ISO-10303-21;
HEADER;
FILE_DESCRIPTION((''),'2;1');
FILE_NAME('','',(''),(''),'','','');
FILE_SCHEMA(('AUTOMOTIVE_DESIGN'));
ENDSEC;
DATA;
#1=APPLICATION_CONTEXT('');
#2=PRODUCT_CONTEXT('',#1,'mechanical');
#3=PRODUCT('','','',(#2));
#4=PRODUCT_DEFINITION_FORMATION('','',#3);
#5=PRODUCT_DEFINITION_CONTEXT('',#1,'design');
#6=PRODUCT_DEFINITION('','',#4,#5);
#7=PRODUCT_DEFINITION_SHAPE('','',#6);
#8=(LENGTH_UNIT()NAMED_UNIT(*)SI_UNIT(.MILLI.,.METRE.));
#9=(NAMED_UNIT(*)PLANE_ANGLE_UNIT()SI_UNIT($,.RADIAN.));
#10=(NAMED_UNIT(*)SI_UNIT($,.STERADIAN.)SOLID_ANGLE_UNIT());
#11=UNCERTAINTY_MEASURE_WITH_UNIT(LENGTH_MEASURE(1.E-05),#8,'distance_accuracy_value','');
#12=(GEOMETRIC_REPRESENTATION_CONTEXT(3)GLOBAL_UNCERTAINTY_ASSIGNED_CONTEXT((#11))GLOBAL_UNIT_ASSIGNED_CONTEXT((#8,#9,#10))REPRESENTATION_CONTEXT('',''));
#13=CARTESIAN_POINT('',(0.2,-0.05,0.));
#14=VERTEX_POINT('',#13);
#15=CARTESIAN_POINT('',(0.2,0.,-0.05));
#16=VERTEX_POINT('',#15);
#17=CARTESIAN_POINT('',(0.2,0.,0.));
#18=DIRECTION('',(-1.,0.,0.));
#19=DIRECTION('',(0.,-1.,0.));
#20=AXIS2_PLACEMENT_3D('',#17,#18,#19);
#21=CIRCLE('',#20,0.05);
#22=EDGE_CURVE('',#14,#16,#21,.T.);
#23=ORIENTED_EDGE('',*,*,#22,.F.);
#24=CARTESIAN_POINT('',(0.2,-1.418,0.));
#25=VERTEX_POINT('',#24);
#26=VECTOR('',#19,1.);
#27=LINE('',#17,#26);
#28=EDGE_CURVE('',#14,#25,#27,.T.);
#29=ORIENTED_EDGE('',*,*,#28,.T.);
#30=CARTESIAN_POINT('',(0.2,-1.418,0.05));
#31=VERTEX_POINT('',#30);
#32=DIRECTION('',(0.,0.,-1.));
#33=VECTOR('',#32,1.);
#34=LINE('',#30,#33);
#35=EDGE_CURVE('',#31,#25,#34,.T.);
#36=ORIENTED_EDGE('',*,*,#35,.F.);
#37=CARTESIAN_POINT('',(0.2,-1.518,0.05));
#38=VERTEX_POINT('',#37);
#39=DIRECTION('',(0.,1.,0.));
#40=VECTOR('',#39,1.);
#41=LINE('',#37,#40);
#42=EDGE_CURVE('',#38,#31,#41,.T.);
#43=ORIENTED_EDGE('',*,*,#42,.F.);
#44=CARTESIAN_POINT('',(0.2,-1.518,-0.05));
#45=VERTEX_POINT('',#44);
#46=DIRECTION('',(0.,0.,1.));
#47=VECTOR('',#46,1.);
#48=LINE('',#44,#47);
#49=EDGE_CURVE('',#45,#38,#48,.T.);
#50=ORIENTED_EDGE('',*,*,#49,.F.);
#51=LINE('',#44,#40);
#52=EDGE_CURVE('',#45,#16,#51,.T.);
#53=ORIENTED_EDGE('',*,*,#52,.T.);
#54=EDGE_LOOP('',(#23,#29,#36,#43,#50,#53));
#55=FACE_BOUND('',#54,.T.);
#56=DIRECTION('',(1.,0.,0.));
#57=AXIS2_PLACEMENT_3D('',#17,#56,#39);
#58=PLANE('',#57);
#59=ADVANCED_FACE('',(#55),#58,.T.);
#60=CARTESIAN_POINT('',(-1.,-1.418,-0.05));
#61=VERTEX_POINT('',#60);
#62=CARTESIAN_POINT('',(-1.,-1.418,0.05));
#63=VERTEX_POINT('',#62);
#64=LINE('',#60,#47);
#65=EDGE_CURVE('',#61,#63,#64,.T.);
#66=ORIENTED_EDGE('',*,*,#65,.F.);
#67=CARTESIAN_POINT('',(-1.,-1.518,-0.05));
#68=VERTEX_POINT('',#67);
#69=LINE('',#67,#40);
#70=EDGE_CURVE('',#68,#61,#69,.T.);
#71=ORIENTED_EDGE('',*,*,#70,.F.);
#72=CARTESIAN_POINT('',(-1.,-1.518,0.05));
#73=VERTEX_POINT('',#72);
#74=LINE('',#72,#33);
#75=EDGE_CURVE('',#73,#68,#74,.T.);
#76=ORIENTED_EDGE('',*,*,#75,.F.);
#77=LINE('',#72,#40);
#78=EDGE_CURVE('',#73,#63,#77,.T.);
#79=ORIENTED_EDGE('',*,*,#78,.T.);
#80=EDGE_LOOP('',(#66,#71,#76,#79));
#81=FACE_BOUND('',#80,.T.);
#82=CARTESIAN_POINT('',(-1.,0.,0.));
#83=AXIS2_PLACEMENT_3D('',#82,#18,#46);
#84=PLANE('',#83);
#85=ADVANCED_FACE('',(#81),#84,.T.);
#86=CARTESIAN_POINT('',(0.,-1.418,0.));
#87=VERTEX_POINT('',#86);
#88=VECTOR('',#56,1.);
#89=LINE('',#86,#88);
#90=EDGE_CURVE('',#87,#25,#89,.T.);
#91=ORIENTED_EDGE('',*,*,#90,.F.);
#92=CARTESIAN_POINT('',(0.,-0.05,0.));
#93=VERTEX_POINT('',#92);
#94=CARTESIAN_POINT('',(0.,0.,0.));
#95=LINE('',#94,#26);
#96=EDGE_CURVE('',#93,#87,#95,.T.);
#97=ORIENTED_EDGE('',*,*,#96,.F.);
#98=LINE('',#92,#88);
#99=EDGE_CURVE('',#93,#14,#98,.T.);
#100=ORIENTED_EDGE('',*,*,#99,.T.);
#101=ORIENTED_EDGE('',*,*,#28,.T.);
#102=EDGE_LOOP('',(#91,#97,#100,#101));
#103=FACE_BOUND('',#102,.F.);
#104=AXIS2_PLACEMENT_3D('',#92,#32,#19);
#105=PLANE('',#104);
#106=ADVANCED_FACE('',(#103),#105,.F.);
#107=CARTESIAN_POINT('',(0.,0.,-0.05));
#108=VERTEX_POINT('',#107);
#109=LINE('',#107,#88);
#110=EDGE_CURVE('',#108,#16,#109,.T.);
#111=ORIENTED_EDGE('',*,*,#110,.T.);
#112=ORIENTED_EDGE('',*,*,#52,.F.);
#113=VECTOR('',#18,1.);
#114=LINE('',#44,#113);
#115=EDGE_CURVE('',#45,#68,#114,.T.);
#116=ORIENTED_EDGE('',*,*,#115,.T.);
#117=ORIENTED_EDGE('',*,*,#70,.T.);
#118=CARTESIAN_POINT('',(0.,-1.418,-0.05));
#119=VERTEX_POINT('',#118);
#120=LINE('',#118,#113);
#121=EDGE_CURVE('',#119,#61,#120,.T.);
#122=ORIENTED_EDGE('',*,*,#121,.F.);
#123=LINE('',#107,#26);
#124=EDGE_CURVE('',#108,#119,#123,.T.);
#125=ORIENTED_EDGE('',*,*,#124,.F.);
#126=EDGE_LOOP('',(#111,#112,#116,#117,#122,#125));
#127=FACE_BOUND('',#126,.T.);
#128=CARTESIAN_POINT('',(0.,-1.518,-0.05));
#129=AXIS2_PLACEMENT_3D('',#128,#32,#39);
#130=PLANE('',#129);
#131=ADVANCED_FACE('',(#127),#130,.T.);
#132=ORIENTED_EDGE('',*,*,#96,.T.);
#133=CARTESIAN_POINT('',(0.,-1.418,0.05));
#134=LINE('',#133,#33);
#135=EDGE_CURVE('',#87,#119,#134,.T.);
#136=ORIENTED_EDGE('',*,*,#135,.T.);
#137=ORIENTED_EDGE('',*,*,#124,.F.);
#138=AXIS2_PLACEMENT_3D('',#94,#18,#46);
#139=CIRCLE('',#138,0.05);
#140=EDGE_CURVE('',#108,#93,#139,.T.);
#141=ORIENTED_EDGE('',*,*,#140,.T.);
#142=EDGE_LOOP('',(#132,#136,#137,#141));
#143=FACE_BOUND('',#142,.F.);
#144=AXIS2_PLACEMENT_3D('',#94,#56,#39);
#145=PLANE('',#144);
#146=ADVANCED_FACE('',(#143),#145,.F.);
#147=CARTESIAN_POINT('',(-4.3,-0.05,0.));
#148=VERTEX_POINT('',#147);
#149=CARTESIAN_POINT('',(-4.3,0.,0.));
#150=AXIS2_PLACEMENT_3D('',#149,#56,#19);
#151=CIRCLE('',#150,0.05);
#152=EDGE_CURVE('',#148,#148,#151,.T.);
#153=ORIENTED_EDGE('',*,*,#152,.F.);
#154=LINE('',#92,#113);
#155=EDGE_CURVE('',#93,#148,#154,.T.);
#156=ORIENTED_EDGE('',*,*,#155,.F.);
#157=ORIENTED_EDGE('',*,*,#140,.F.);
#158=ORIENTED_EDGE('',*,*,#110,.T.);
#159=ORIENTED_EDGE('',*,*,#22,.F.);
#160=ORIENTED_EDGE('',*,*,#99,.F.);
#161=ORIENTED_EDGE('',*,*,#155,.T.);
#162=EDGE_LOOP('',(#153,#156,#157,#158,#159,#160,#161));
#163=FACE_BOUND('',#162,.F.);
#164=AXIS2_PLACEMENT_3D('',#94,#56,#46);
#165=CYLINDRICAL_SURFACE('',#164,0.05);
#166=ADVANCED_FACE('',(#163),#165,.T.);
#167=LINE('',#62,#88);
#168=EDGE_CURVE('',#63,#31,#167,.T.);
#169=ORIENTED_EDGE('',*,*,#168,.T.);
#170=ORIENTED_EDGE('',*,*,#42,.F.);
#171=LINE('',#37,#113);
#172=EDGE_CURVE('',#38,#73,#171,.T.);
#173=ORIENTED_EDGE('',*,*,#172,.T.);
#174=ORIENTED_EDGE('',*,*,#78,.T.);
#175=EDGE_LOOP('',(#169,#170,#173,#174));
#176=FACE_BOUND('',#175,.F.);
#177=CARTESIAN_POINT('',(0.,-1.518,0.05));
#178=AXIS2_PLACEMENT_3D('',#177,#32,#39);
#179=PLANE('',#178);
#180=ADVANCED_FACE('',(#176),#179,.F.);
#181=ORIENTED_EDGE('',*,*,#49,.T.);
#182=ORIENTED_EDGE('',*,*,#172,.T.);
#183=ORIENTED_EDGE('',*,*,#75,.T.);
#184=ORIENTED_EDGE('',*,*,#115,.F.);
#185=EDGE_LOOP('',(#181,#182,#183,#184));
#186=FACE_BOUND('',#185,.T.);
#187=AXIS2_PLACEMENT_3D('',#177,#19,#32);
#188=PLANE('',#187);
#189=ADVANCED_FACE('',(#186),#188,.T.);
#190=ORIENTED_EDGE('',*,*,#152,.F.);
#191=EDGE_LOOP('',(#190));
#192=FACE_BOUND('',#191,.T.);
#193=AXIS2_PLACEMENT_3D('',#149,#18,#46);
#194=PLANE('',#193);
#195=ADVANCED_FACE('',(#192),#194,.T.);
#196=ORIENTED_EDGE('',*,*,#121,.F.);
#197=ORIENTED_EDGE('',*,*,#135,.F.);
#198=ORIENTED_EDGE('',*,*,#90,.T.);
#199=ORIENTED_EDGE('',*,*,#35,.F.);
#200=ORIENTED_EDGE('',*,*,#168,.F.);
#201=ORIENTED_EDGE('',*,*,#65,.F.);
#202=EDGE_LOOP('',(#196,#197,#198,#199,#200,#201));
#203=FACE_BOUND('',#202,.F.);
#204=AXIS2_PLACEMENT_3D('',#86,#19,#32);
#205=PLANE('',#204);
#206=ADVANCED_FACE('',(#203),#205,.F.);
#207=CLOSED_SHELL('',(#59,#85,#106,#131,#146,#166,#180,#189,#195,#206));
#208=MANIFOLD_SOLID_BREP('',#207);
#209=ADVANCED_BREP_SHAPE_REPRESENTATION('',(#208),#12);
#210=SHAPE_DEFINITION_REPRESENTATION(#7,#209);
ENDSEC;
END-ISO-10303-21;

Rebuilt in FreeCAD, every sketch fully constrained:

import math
import FreeCAD as App
import Part
import Sketcher
from FreeCAD import Vector
Q = App.Units.Quantity


def add_polygon(sketch, points):
    """Adds a closed chain of lines whose ends are joined by coincident constraints."""
    first, n = sketch.GeometryCount, len(points)
    for a, b in zip(points, points[1:] + points[:1]):
        sketch.addGeometry(Part.LineSegment(App.Vector(*a, 0), App.Vector(*b, 0)), False)
    for i in range(n):
        sketch.addConstraint(Sketcher.Constraint("Coincident", first + i, 2, first + (i + 1) % n, 1))

doc = App.newDocument("Part")
body = doc.addObject("PartDesign::Body", "Body")

sketch1 = body.newObject("Sketcher::SketchObject", "Sketch")
sketch1.AttachmentSupport = (doc.getObject("YZ_Plane"), [""])
sketch1.MapMode = "FlatFace"
sketch1.addGeometry([
    Part.LineSegment(Vector(-0.05, 0, 0), Vector(-1.42, 0, 0)),
    Part.LineSegment(Vector(-1.42, 0, 0), Vector(-1.42, 0.05, 0)),
    Part.LineSegment(Vector(-1.42, 0.05, 0), Vector(-1.52, 0.05, 0)),
    Part.LineSegment(Vector(-1.52, 0.05, 0), Vector(-1.52, -0.05, 0)),
    Part.LineSegment(Vector(-1.52, -0.05, 0), Vector(0, -0.05, 0)),
    Part.ArcOfCircle(Part.Circle(Vector(0, 0, 0), Vector(0, 0, 1), 0.05), math.radians(-90), math.radians(180)),
], False)
sketch1.addConstraint([
    Sketcher.Constraint("Coincident", 0, 2, 1, 1),
    Sketcher.Constraint("Coincident", 1, 2, 2, 1),
    Sketcher.Constraint("Coincident", 2, 2, 3, 1),
    Sketcher.Constraint("Coincident", 3, 2, 4, 1),
    Sketcher.Constraint("Tangent", 4, 2, 5, 1),
    Sketcher.Constraint("Coincident", 5, 2, 0, 1),
    Sketcher.Constraint("Horizontal", 0),
    Sketcher.Constraint("Vertical", 1),
    Sketcher.Constraint("Horizontal", 2),
    Sketcher.Constraint("Vertical", 3),
    Sketcher.Constraint("Horizontal", 4),
    Sketcher.Constraint("Coincident", 5, 3, -1, 1),
    Sketcher.Constraint("PointOnObject", 0, 2, -1),
    Sketcher.Constraint("Equal", 2, 3),
    Sketcher.Constraint("Radius", 5, Q("0.05 mm")),
    Sketcher.Constraint("DistanceX", 2, 2, 2, 1, Q("0.1 mm")),
    Sketcher.Constraint("DistanceX", 2, 2, 5, 2, Q("1.468 mm")),
])
pad1 = body.newObject("PartDesign::Pad", "Pad")
pad1.Profile = sketch1
pad1.Length = 0.2

sketch2 = body.newObject("Sketcher::SketchObject", "Sketch001")
sketch2.AttachmentSupport = (doc.getObject("YZ_Plane"), [""])
sketch2.MapMode = "FlatFace"
sketch2.addGeometry(Part.Circle(Vector(0, 0, 0), Vector(0, 0, 1), 0.05), False)
sketch2.addConstraint([
    Sketcher.Constraint("Coincident", 0, 3, -1, 1),
    Sketcher.Constraint("Diameter", 0, Q("0.1 mm")),
])
pad2 = body.newObject("PartDesign::Pad", "Pad001")
pad2.Profile = sketch2
pad2.Length = 4.3
pad2.Reversed = True

sketch3 = body.newObject("Sketcher::SketchObject", "Sketch002")
sketch3.AttachmentSupport = (doc.getObject("YZ_Plane"), [""])
sketch3.MapMode = "FlatFace"
add_polygon(sketch3, [(-1.42, -0.05), (-1.52, -0.05), (-1.52, 0.05), (-1.42, 0.05)])
sketch3.addConstraint([
    Sketcher.Constraint("Horizontal", 0),
    Sketcher.Constraint("Vertical", 1),
    Sketcher.Constraint("Horizontal", 2),
    Sketcher.Constraint("Vertical", 3),
    Sketcher.Constraint("Equal", 2, 1),
    Sketcher.Constraint("DistanceX", 0, 2, 0, 1, Q("0.1 mm")),
    Sketcher.Constraint("DistanceY", 0, 2, -1, 1, Q("0.05 mm")),
    Sketcher.Constraint("DistanceX", 0, 2, -1, 1, Q("1.518 mm")),
])
pad3 = body.newObject("PartDesign::Pad", "Pad002")
pad3.Profile = sketch3
pad3.Length = 1
pad3.Reversed = True

doc.recompute()
